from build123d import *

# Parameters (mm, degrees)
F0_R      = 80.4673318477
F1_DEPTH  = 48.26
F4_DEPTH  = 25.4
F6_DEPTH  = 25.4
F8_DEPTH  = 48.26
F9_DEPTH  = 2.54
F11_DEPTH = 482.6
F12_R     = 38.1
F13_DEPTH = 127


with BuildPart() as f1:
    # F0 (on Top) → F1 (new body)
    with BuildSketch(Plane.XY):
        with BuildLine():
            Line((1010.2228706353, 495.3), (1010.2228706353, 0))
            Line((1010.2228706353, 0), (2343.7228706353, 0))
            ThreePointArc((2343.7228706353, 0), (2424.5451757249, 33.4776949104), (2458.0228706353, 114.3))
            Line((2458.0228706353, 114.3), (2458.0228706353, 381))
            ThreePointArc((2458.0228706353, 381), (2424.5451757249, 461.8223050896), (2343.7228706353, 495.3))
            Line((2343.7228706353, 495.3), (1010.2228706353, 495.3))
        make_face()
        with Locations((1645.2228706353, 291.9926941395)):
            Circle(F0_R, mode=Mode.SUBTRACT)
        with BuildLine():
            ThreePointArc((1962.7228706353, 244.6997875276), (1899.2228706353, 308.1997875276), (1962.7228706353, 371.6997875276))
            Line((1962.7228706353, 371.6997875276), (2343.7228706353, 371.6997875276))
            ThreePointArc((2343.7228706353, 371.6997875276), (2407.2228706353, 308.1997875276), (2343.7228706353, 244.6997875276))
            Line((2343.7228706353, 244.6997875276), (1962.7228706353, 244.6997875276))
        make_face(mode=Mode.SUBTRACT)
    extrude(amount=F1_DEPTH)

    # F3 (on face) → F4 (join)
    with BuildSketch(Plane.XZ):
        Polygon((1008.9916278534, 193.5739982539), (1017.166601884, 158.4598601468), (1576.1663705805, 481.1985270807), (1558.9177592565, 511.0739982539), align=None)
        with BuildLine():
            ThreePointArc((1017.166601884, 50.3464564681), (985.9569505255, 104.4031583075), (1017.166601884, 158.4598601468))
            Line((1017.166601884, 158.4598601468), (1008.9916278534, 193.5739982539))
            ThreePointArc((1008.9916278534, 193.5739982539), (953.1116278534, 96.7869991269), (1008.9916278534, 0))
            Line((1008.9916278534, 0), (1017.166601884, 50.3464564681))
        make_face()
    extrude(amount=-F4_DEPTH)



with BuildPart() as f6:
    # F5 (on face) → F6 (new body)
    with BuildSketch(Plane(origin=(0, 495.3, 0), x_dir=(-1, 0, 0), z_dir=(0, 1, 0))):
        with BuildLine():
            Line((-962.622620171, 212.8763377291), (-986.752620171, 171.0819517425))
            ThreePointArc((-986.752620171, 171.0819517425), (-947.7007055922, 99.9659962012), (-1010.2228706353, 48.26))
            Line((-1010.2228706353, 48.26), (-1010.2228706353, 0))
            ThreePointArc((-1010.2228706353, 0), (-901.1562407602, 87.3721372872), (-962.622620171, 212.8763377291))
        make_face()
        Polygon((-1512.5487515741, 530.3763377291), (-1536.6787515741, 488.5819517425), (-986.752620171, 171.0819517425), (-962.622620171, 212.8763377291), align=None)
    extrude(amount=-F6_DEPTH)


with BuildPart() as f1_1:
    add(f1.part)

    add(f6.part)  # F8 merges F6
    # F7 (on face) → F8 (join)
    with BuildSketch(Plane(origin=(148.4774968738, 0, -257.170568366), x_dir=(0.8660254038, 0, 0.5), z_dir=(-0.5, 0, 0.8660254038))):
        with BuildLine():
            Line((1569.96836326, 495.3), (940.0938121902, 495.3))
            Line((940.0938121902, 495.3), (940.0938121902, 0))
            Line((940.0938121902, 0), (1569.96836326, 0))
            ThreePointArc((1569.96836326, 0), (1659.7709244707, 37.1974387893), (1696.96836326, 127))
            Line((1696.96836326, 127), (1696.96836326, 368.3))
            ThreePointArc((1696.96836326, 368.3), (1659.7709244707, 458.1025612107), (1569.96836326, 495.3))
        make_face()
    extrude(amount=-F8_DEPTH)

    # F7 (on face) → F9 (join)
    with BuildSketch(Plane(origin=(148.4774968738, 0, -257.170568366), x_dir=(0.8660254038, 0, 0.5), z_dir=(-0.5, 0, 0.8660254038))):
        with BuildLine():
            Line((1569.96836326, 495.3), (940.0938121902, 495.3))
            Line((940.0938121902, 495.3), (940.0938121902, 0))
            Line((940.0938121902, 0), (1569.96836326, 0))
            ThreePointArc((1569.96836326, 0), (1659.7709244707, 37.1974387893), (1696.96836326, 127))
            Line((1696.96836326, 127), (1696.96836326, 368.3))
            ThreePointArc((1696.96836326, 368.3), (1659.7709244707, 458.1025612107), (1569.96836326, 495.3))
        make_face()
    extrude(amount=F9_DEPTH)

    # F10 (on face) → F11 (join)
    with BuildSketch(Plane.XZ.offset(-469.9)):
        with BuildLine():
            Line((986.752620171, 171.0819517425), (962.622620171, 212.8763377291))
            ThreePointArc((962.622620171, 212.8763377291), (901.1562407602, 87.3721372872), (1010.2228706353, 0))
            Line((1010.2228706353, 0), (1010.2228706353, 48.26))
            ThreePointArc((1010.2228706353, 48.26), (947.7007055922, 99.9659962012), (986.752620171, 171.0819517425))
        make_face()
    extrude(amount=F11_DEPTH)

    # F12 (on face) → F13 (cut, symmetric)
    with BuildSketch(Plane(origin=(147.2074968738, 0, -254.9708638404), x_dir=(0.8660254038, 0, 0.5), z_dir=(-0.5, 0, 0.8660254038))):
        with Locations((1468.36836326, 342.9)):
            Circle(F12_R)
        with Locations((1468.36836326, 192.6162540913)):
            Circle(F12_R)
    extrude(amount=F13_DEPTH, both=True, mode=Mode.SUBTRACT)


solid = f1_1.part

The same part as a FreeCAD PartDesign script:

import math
import FreeCAD as App
import Part
import Sketcher

V = App.Vector
Q = App.Units.Quantity

doc = App.newDocument("Part")
params = doc.addObject("Spreadsheet::Sheet", "Params")
for row, (alias, value) in enumerate([
    ("sketch1_radius", "4.5 in"),
    ("sketch1_radius2", "2.5 in"),
    ("sketch1_width", "15 in"),
    ("sketch1_width2", "52.5 in"),
    ("sketch1_height", "19.5 in"),
    ("pad1_length", "1.9 in"),
    ("sketch2_radius", "4.4 in"),
    ("sketch2_length", "25 in"),
    ("pad2_length", "1 in"),
    ("sketch3_radius", "4.4 in"),
    ("sketch3_length", "25 in"),
    ("sketch3_height", "1.9 in"),
    ("sketch3_length2", "1.9 in"),
    ("pad3_length", "1 in"),
    ("sketch4_radius", "5 in"),
    ("sketch4_height", "19.5 in"),
    ("pad4_length", "1.9 in"),
    ("sketch5_radius", "5 in"),
    ("sketch5_height", "19.5 in"),
    ("pad5_length", "0.1 in"),
    ("sketch6_radius", "4.4 in"),
    ("sketch6_height", "1.9 in"),
    ("sketch6_length", "1.9 in"),
    ("pad6_length", "19 in"),
    ("sketch7_diameter", "3 in"),
    ("pocket1_length", "10 in"),
], start=1):
    params.set(f"A{row}", alias)
    params.set(f"B{row}", "=" + value)
    params.setAlias(f"B{row}", alias)

body = doc.addObject("PartDesign::Body", "Body")

# Sketch on XY plane
sketch1 = doc.addObject("Sketcher::SketchObject", "Sketch")
body.addObject(sketch1)
sketch1.AttachmentSupport = (doc.XY_Plane, [""])
sketch1.MapMode = "FlatFace"
sketch1.addGeometry(Part.LineSegment(V(1010, 495, 0), V(1010, 0, 0)), False)
sketch1.addGeometry(Part.LineSegment(V(1010, 0, 0), V(2344, 0, 0)), False)
sketch1.addGeometry(Part.ArcOfCircle(Part.Circle(V(2344, 114, 0), V(0, 0, 1), 114), math.radians(-90), math.radians(0)), False)
sketch1.addGeometry(Part.LineSegment(V(2458, 114, 0), V(2458, 381, 0)), False)
sketch1.addGeometry(Part.ArcOfCircle(Part.Circle(V(2344, 381, 0), V(0, 0, 1), 114), math.radians(0), math.radians(90)), False)
sketch1.addGeometry(Part.LineSegment(V(2344, 495, 0), V(1010, 495, 0)), False)
sketch1.addGeometry(Part.Circle(V(1645, 292, 0), V(0, 0, 1), 80), False)
sketch1.addGeometry(Part.LineSegment(V(2344, 245, 0), V(1963, 245, 0)), False)
sketch1.addGeometry(Part.ArcOfCircle(Part.Circle(V(1963, 308, 0), V(0, 0, 1), 64), math.radians(90), math.radians(270)), False)
sketch1.addGeometry(Part.LineSegment(V(1963, 372, 0), V(2344, 372, 0)), False)
sketch1.addGeometry(Part.ArcOfCircle(Part.Circle(V(2344, 308, 0), V(0, 0, 1), 64), math.radians(-90), math.radians(90)), False)
sketch1.addConstraint(Sketcher.Constraint("Coincident", 0, 2, 1, 1))
sketch1.addConstraint(Sketcher.Constraint("Tangent", 1, 2, 2, 1))
sketch1.addConstraint(Sketcher.Constraint("Tangent", 2, 2, 3, 1))
sketch1.addConstraint(Sketcher.Constraint("Tangent", 3, 2, 4, 1))
sketch1.addConstraint(Sketcher.Constraint("Tangent", 4, 2, 5, 1))
sketch1.addConstraint(Sketcher.Constraint("Coincident", 5, 2, 0, 1))
sketch1.addConstraint(Sketcher.Constraint("Tangent", 7, 2, 8, 2))
sketch1.addConstraint(Sketcher.Constraint("Tangent", 8, 1, 9, 1))
sketch1.addConstraint(Sketcher.Constraint("Tangent", 9, 2, 10, 2))
sketch1.addConstraint(Sketcher.Constraint("Tangent", 10, 1, 7, 1))
sketch1.addConstraint(Sketcher.Constraint("Vertical", 0))
sketch1.addConstraint(Sketcher.Constraint("Horizontal", 1))
sketch1.addConstraint(Sketcher.Constraint("Vertical", 3))
sketch1.addConstraint(Sketcher.Constraint("Horizontal", 5))
sketch1.addConstraint(Sketcher.Constraint("Horizontal", 7))
sketch1.addConstraint(Sketcher.Constraint("Horizontal", 9))
sketch1.addConstraint(Sketcher.Constraint("Equal", 2, 4))
sketch1.addConstraint(Sketcher.Constraint("PointOnObject", 0, 2, -1))
sketch1.addConstraint(Sketcher.Constraint("Vertical", 4, 3, 10, 3))
sketch1.addConstraint(Sketcher.Constraint("Radius", 2, Q("4.5 in")))
sketch1.addConstraint(Sketcher.Constraint("Radius", 8, Q("2.5 in")))
sketch1.addConstraint(Sketcher.Constraint("DistanceX", 7, 2, 7, 1, Q("15 in")))
sketch1.addConstraint(Sketcher.Constraint("DistanceX", 1, 1, 1, 2, Q("52.5 in")))
sketch1.addConstraint(Sketcher.Constraint("DistanceY", 0, 2, 0, 1, Q("19.5 in")))
sketch1.addConstraint(Sketcher.Constraint("DistanceX", 0, 2, 6, 3, Q("25 in")))
sketch1.addConstraint(Sketcher.Constraint("Diameter", 6, Q("160.934664 mm")))
sketch1.addConstraint(Sketcher.Constraint("DistanceX", -1, 1, 2, 3, Q("2343.722871 mm")))
sketch1.addConstraint(Sketcher.Constraint("DistanceY", -1, 1, 6, 3, Q("291.992694 mm")))
sketch1.addConstraint(Sketcher.Constraint("DistanceY", -1, 1, 8, 3, Q("308.199788 mm")))
sketch1.setExpression("Constraints[19]", "Params.sketch1_radius")
sketch1.setExpression("Constraints[20]", "Params.sketch1_radius2")
sketch1.setExpression("Constraints[21]", "Params.sketch1_width")
sketch1.setExpression("Constraints[22]", "Params.sketch1_width2")
sketch1.setExpression("Constraints[23]", "Params.sketch1_height")
pad1 = doc.addObject("PartDesign::Pad", "Pad")
body.addObject(pad1)
pad1.Profile = sketch1
pad1.setExpression("Length", "Params.pad1_length")

# Sketch on XZ plane
sketch2 = doc.addObject("Sketcher::SketchObject", "Sketch001")
body.addObject(sketch2)
sketch2.AttachmentSupport = (doc.XZ_Plane, [""])
sketch2.MapMode = "FlatFace"
sketch2.addGeometry(Part.LineSegment(V(1017, 158, 0), V(1576, 481, 0)), False)
sketch2.addGeometry(Part.LineSegment(V(1576, 481, 0), V(1559, 511, 0)), False)
sketch2.addGeometry(Part.LineSegment(V(1559, 511, 0), V(1009, 194, 0)), False)
sketch2.addGeometry(Part.ArcOfCircle(Part.Circle(V(1065, 97, 0), V(0, 0, 1), 112), math.radians(120), math.radians(240)), False)
sketch2.addGeometry(Part.LineSegment(V(1009, 0, 0), V(1017, 50, 0)), False)
sketch2.addGeometry(Part.ArcOfCircle(Part.Circle(V(1048, 104, 0), V(0, 0, 1), 62), math.radians(120), math.radians(240)), False)
sketch2.addConstraint(Sketcher.Constraint("Coincident", 0, 2, 1, 1))
sketch2.addConstraint(Sketcher.Constraint("Coincident", 1, 2, 2, 1))
sketch2.addConstraint(Sketcher.Constraint("Tangent", 2, 2, 3, 1))
sketch2.addConstraint(Sketcher.Constraint("Coincident", 3, 2, 4, 1))
sketch2.addConstraint(Sketcher.Constraint("Coincident", 4, 2, 5, 2))
sketch2.addConstraint(Sketcher.Constraint("Tangent", 5, 1, 0, 1))
sketch2.addConstraint(Sketcher.Constraint("PointOnObject", 3, 2, -1))
sketch2.addConstraint(Sketcher.Constraint("Perpendicular", 0, 1))
sketch2.addConstraint(Sketcher.Constraint("Perpendicular", 1, 2))
sketch2.addConstraint(Sketcher.Constraint("Vertical", 2, 2, 3, 2))
sketch2.addConstraint(Sketcher.Constraint("Vertical", 4, 2, 5, 1))
sketch2.addConstraint(Sketcher.Constraint("Radius", 3, Q("4.4 in")))
sketch2.addConstraint(Sketcher.Constraint("Distance", 2, Q("25 in")))
sketch2.addConstraint(Sketcher.Constraint("Angle", 0, Q("30 deg")))
sketch2.addConstraint(Sketcher.Constraint("Radius", 5, Q("62.419303 mm")))
sketch2.addConstraint(Sketcher.Constraint("DistanceX", -1, 1, 4, 2, Q("1017.166602 mm")))
sketch2.addConstraint(Sketcher.Constraint("Distance", 4, Q("51.005842 mm")))
sketch2.addConstraint(Sketcher.Constraint("DistanceY", -1, 1, 5, 3, Q("104.403158 mm")))
sketch2.setExpression("Constraints[11]", "Params.sketch2_radius")
sketch2.setExpression("Constraints[12]", "Params.sketch2_length")
pad2 = doc.addObject("PartDesign::Pad", "Pad001")
body.addObject(pad2)
pad2.Profile = sketch2
pad2.setExpression("Length", "Params.pad2_length")
pad2.Reversed = True
body2 = doc.addObject("PartDesign::Body", "Body001")

# Sketch on XZ plane
sketch3 = doc.addObject("Sketcher::SketchObject", "Sketch002")
body2.addObject(sketch3)
sketch3.AttachmentSupport = (doc.getObject("XZ_Plane001"), [""])
sketch3.MapMode = "FlatFace"
sketch3.AttachmentOffset = App.Placement(V(0, 0, -19.5 * 25.4), App.Rotation())
sketch3.addGeometry(Part.ArcOfCircle(Part.Circle(V(1010, 112, 0), V(0, 0, 1), 64), math.radians(112), math.radians(270)), False)
sketch3.addGeometry(Part.LineSegment(V(1010, 48, 0), V(1010, 0, 0)), False)
sketch3.addGeometry(Part.ArcOfCircle(Part.Circle(V(1010, 112, 0), V(0, 0, 1), 112), math.radians(115), math.radians(270)), False)
sketch3.addGeometry(Part.LineSegment(V(963, 213, 0), V(1513, 530, 0)), False)
sketch3.addGeometry(Part.LineSegment(V(1513, 530, 0), V(1537, 489, 0)), False)
sketch3.addGeometry(Part.LineSegment(V(1537, 489, 0), V(987, 171, 0)), False)
sketch3.addConstraint(Sketcher.Constraint("Coincident", 0, 2, 1, 1))
sketch3.addConstraint(Sketcher.Constraint("Coincident", 1, 2, 2, 2))
sketch3.addConstraint(Sketcher.Constraint("Coincident", 2, 1, 3, 1))
sketch3.addConstraint(Sketcher.Constraint("Coincident", 3, 2, 4, 1))
sketch3.addConstraint(Sketcher.Constraint("Coincident", 4, 2, 5, 1))
sketch3.addConstraint(Sketcher.Constraint("Coincident", 5, 2, 0, 1))
sketch3.addConstraint(Sketcher.Constraint("Vertical", 1))
sketch3.addConstraint(Sketcher.Constraint("PointOnObject", 1, 2, -1))
sketch3.addConstraint(Sketcher.Constraint("Perpendicular", 3, 4))
sketch3.addConstraint(Sketcher.Constraint("Perpendicular", 4, 5))
sketch3.addConstraint(Sketcher.Constraint("Vertical", 0, 3, 2, 3))
sketch3.addConstraint(Sketcher.Constraint("Vertical", 2, 3, 0, 2))
sketch3.addConstraint(Sketcher.Constraint("Equal", 3, 5))
sketch3.addConstraint(Sketcher.Constraint("Radius", 2, Q("4.4 in")))
sketch3.addConstraint(Sketcher.Constraint("Distance", 3, Q("25 in")))
sketch3.addConstraint(Sketcher.Constraint("DistanceY", 1, 2, 1, 1, Q("1.9 in")))
sketch3.addConstraint(Sketcher.Constraint("Angle", 3, Q("30 deg")))
sketch3.addConstraint(Sketcher.Constraint("Distance", 4, Q("1.9 in")))
sketch3.addConstraint(Sketcher.Constraint("Radius", 0, Q("63.65346 mm")))
sketch3.addConstraint(Sketcher.Constraint("DistanceX", -1, 1, 0, 3, Q("1010.222871 mm")))
sketch3.setExpression("Constraints[13]", "Params.sketch3_radius")
sketch3.setExpression("Constraints[14]", "Params.sketch3_length")
sketch3.setExpression("Constraints[15]", "Params.sketch3_height")
sketch3.setExpression("Constraints[17]", "Params.sketch3_length2")
pad3 = doc.addObject("PartDesign::Pad", "Pad002")
body2.addObject(pad3)
pad3.Profile = sketch3
pad3.setExpression("Length", "Params.pad3_length")
doc.recompute()

boolean = doc.addObject("PartDesign::Boolean", "Boolean")
body.addObject(boolean)
boolean.Type = "Fuse"
boolean.addObjects([body2])

# Sketch on an angled plane
sketch4 = doc.addObject("Sketcher::SketchObject", "Sketch003")
body.addObject(sketch4)
sketch4.Placement = App.Placement(V(148.477497, 0, -257.170568), App.Rotation(V(0.866025404, 0, 0.5), V(0, 1, 0), V(-0.5, 0, 0.866025404), "ZXY"))
sketch4.addGeometry(Part.LineSegment(V(1570, 495, 0), V(940, 495, 0)), False)
sketch4.addGeometry(Part.LineSegment(V(940, 495, 0), V(940, 0, 0)), False)
sketch4.addGeometry(Part.LineSegment(V(940, 0, 0), V(1570, 0, 0)), False)
sketch4.addGeometry(Part.ArcOfCircle(Part.Circle(V(1570, 127, 0), V(0, 0, 1), 127), math.radians(-90), math.radians(0)), False)
sketch4.addGeometry(Part.LineSegment(V(1697, 127, 0), V(1697, 368, 0)), False)
sketch4.addGeometry(Part.ArcOfCircle(Part.Circle(V(1570, 368, 0), V(0, 0, 1), 127), math.radians(0), math.radians(90)), False)
sketch4.addConstraint(Sketcher.Constraint("Coincident", 0, 2, 1, 1))
sketch4.addConstraint(Sketcher.Constraint("Coincident", 1, 2, 2, 1))
sketch4.addConstraint(Sketcher.Constraint("Tangent", 2, 2, 3, 1))
sketch4.addConstraint(Sketcher.Constraint("Tangent", 3, 2, 4, 1))
sketch4.addConstraint(Sketcher.Constraint("Tangent", 4, 2, 5, 1))
sketch4.addConstraint(Sketcher.Constraint("Tangent", 5, 2, 0, 1))
sketch4.addConstraint(Sketcher.Constraint("Horizontal", 0))
sketch4.addConstraint(Sketcher.Constraint("Vertical", 1))
sketch4.addConstraint(Sketcher.Constraint("Horizontal", 2))
sketch4.addConstraint(Sketcher.Constraint("Vertical", 4))
sketch4.addConstraint(Sketcher.Constraint("Equal", 3, 5))
sketch4.addConstraint(Sketcher.Constraint("PointOnObject", 1, 2, -1))
sketch4.addConstraint(Sketcher.Constraint("Radius", 3, Q("5 in")))
sketch4.addConstraint(Sketcher.Constraint("DistanceY", 1, 2, 1, 1, Q("19.5 in")))
sketch4.addConstraint(Sketcher.Constraint("DistanceX", 0, 2, 0, 1, Q("629.874551 mm")))
sketch4.addConstraint(Sketcher.Constraint("DistanceX", -1, 1, 3, 3, Q("1569.968364 mm")))
sketch4.setExpression("Constraints[12]", "Params.sketch4_radius")
sketch4.setExpression("Constraints[13]", "Params.sketch4_height")
pad4 = doc.addObject("PartDesign::Pad", "Pad003")
body.addObject(pad4)
pad4.Profile = sketch4
pad4.setExpression("Length", "Params.pad4_length")
pad4.Reversed = True

# Sketch on an angled plane
sketch5 = doc.addObject("Sketcher::SketchObject", "Sketch004")
body.addObject(sketch5)
sketch5.Placement = App.Placement(V(148.477497, 0, -257.170568), App.Rotation(V(0.866025404, 0, 0.5), V(0, 1, 0), V(-0.5, 0, 0.866025404), "ZXY"))
sketch5.addGeometry(Part.LineSegment(V(1570, 495, 0), V(940, 495, 0)), False)
sketch5.addGeometry(Part.LineSegment(V(940, 495, 0), V(940, 0, 0)), False)
sketch5.addGeometry(Part.LineSegment(V(940, 0, 0), V(1570, 0, 0)), False)
sketch5.addGeometry(Part.ArcOfCircle(Part.Circle(V(1570, 127, 0), V(0, 0, 1), 127), math.radians(-90), math.radians(0)), False)
sketch5.addGeometry(Part.LineSegment(V(1697, 127, 0), V(1697, 368, 0)), False)
sketch5.addGeometry(Part.ArcOfCircle(Part.Circle(V(1570, 368, 0), V(0, 0, 1), 127), math.radians(0), math.radians(90)), False)
sketch5.addConstraint(Sketcher.Constraint("Coincident", 0, 2, 1, 1))
sketch5.addConstraint(Sketcher.Constraint("Coincident", 1, 2, 2, 1))
sketch5.addConstraint(Sketcher.Constraint("Tangent", 2, 2, 3, 1))
sketch5.addConstraint(Sketcher.Constraint("Tangent", 3, 2, 4, 1))
sketch5.addConstraint(Sketcher.Constraint("Tangent", 4, 2, 5, 1))
sketch5.addConstraint(Sketcher.Constraint("Tangent", 5, 2, 0, 1))
sketch5.addConstraint(Sketcher.Constraint("Horizontal", 0))
sketch5.addConstraint(Sketcher.Constraint("Vertical", 1))
sketch5.addConstraint(Sketcher.Constraint("Horizontal", 2))
sketch5.addConstraint(Sketcher.Constraint("Vertical", 4))
sketch5.addConstraint(Sketcher.Constraint("Equal", 3, 5))
sketch5.addConstraint(Sketcher.Constraint("PointOnObject", 1, 2, -1))
sketch5.addConstraint(Sketcher.Constraint("Radius", 3, Q("5 in")))
sketch5.addConstraint(Sketcher.Constraint("DistanceY", 1, 2, 1, 1, Q("19.5 in")))
sketch5.addConstraint(Sketcher.Constraint("DistanceX", 0, 2, 0, 1, Q("629.874551 mm")))
sketch5.addConstraint(Sketcher.Constraint("DistanceX", -1, 1, 3, 3, Q("1569.968364 mm")))
sketch5.setExpression("Constraints[12]", "Params.sketch5_radius")
sketch5.setExpression("Constraints[13]", "Params.sketch5_height")
pad5 = doc.addObject("PartDesign::Pad", "Pad004")
body.addObject(pad5)
pad5.Profile = sketch5
pad5.setExpression("Length", "Params.pad5_length")

# Sketch on XZ plane
sketch6 = doc.addObject("Sketcher::SketchObject", "Sketch005")
body.addObject(sketch6)
sketch6.AttachmentSupport = (doc.XZ_Plane, [""])
sketch6.MapMode = "FlatFace"
sketch6.AttachmentOffset = App.Placement(V(0, 0, -18.5 * 25.4), App.Rotation())
sketch6.addGeometry(Part.LineSegment(V(987, 171, 0), V(963, 213, 0)), False)
sketch6.addGeometry(Part.ArcOfCircle(Part.Circle(V(1010, 112, 0), V(0, 0, 1), 112), math.radians(115), math.radians(270)), False)
sketch6.addGeometry(Part.LineSegment(V(1010, 0, 0), V(1010, 48, 0)), False)
sketch6.addGeometry(Part.ArcOfCircle(Part.Circle(V(1010, 112, 0), V(0, 0, 1), 64), math.radians(112), math.radians(270)), False)
sketch6.addConstraint(Sketcher.Constraint("Coincident", 0, 2, 1, 1))
sketch6.addConstraint(Sketcher.Constraint("Coincident", 1, 2, 2, 1))
sketch6.addConstraint(Sketcher.Constraint("Coincident", 2, 2, 3, 2))
sketch6.addConstraint(Sketcher.Constraint("Coincident", 3, 1, 0, 1))
sketch6.addConstraint(Sketcher.Constraint("Vertical", 2))
sketch6.addConstraint(Sketcher.Constraint("PointOnObject", 1, 2, -1))
sketch6.addConstraint(Sketcher.Constraint("Vertical", 1, 3, 3, 3))
sketch6.addConstraint(Sketcher.Constraint("Vertical", 3, 3, 1, 2))
sketch6.addConstraint(Sketcher.Constraint("Radius", 1, Q("4.4 in")))
sketch6.addConstraint(Sketcher.Constraint("DistanceY", 2, 1, 2, 2, Q("1.9 in")))
sketch6.addConstraint(Sketcher.Constraint("Angle", 0, Q("120 deg")))
sketch6.addConstraint(Sketcher.Constraint("Distance", 0, Q("1.9 in")))
sketch6.addConstraint(Sketcher.Constraint("Radius", 3, Q("63.65346 mm")))
sketch6.addConstraint(Sketcher.Constraint("DistanceX", -1, 1, 1, 3, Q("1010.222871 mm")))
sketch6.setExpression("Constraints[8]", "Params.sketch6_radius")
sketch6.setExpression("Constraints[9]", "Params.sketch6_height")
sketch6.setExpression("Constraints[11]", "Params.sketch6_length")
pad6 = doc.addObject("PartDesign::Pad", "Pad005")
body.addObject(pad6)
pad6.Profile = sketch6
pad6.setExpression("Length", "Params.pad6_length")

# Sketch on an angled plane
sketch7 = doc.addObject("Sketcher::SketchObject", "Sketch006")
body.addObject(sketch7)
sketch7.Placement = App.Placement(V(147.207497, 0, -254.970864), App.Rotation(V(0.866025404, 0, 0.5), V(0, 1, 0), V(-0.5, 0, 0.866025404), "ZXY"))
sketch7.addGeometry(Part.Circle(V(1468, 343, 0), V(0, 0, 1), 38), False)
sketch7.addGeometry(Part.Circle(V(1468, 193, 0), V(0, 0, 1), 38), False)
sketch7.addConstraint(Sketcher.Constraint("Equal", 0, 1))
sketch7.addConstraint(Sketcher.Constraint("Vertical", 0, 3, 1, 3))
sketch7.addConstraint(Sketcher.Constraint("Diameter", 0, Q("3 in")))
sketch7.addConstraint(Sketcher.Constraint("DistanceY", -1, 1, 0, 3, Q("13.5 in")))
sketch7.addConstraint(Sketcher.Constraint("DistanceX", -1, 1, 0, 3, Q("1468.368364 mm")))
sketch7.addConstraint(Sketcher.Constraint("DistanceY", -1, 1, 1, 3, Q("192.616254 mm")))
sketch7.setExpression("Constraints[2]", "Params.sketch7_diameter")
pocket1 = doc.addObject("PartDesign::Pocket", "Pocket")
body.addObject(pocket1)
pocket1.Profile = sketch7
pocket1.setExpression("Length", "Params.pocket1_length")
pocket1.Midplane = True

doc.recompute()
